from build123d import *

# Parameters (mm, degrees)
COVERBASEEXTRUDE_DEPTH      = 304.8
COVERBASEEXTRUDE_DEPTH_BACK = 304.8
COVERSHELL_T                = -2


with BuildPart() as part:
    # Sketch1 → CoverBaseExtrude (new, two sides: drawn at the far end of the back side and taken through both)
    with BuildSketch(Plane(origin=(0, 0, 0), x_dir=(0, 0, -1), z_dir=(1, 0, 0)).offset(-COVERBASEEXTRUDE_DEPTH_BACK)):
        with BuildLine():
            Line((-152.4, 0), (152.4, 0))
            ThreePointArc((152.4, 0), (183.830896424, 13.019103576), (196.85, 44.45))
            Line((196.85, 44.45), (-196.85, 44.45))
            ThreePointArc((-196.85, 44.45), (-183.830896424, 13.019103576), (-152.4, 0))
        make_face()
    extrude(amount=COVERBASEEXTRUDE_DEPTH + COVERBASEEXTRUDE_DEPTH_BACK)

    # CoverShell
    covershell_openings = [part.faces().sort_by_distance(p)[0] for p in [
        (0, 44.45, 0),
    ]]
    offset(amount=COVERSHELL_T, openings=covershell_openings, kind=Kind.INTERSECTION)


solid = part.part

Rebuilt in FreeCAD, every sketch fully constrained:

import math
import FreeCAD as App
import Part
import Sketcher
Q = App.Units.Quantity


def faces_at(feature, points):
    """Names of the faces that lie closest to the given points."""
    faces = feature.Shape.Faces
    near = lambda p: min(range(len(faces)), key=lambda i: faces[i].distToShape(Part.Vertex(*p))[0])
    return sorted({f"Face{near(p) + 1}" for p in points})

doc = App.newDocument("Part")
body = doc.addObject("PartDesign::Body", "Body")

# Sketch on YZ plane
sketch1 = body.newObject("Sketcher::SketchObject", "Sketch")
sketch1.AttachmentSupport = (doc.getObject("YZ_Plane"), [""])
sketch1.MapMode = "FlatFace"
sketch1.addGeometry([
    Part.LineSegment(App.Vector(0, 152, 0), App.Vector(0, -152, 0)),
    Part.ArcOfCircle(Part.Circle(App.Vector(44, -152, 0), App.Vector(0, 0, 1), 44), math.radians(180), math.radians(270)),
    Part.LineSegment(App.Vector(44, -197, 0), App.Vector(44, 197, 0)),
    Part.ArcOfCircle(Part.Circle(App.Vector(44, 152, 0), App.Vector(0, 0, 1), 44), math.radians(90), math.radians(180)),
], False)
sketch1.addConstraint([
    Sketcher.Constraint("Tangent", 0, 2, 1, 1),
    Sketcher.Constraint("Coincident", 1, 2, 2, 1),
    Sketcher.Constraint("Coincident", 2, 2, 3, 1),
    Sketcher.Constraint("Tangent", 3, 2, 0, 1),
    Sketcher.Constraint("Vertical", 0),
    Sketcher.Constraint("Vertical", 2),
    Sketcher.Constraint("Equal", 1, 3),
    Sketcher.Constraint("Symmetric", 0, 2, 3, 2, -1, 1),
    Sketcher.Constraint("Vertical", 3, 3, 1, 2),
    Sketcher.Constraint("DistanceY", 0, 2, 0, 1, Q("12 in")),
    Sketcher.Constraint("Radius", 1, Q("1.75 in")),
])
pad1 = body.newObject("PartDesign::Pad", "Pad")
pad1.Profile = sketch1
pad1.Type = "TwoLengths"
pad1.Length = Q("12 in")
pad1.Length2 = Q("12 in")
doc.recompute()

thickness = body.newObject("PartDesign::Thickness", "Thickness")
thickness.Base = (pad1, faces_at(pad1, [(0, 44.45, 0)]))
thickness.Value = 2
thickness.Reversed = True
thickness.Join = "Intersection"

doc.recompute()
